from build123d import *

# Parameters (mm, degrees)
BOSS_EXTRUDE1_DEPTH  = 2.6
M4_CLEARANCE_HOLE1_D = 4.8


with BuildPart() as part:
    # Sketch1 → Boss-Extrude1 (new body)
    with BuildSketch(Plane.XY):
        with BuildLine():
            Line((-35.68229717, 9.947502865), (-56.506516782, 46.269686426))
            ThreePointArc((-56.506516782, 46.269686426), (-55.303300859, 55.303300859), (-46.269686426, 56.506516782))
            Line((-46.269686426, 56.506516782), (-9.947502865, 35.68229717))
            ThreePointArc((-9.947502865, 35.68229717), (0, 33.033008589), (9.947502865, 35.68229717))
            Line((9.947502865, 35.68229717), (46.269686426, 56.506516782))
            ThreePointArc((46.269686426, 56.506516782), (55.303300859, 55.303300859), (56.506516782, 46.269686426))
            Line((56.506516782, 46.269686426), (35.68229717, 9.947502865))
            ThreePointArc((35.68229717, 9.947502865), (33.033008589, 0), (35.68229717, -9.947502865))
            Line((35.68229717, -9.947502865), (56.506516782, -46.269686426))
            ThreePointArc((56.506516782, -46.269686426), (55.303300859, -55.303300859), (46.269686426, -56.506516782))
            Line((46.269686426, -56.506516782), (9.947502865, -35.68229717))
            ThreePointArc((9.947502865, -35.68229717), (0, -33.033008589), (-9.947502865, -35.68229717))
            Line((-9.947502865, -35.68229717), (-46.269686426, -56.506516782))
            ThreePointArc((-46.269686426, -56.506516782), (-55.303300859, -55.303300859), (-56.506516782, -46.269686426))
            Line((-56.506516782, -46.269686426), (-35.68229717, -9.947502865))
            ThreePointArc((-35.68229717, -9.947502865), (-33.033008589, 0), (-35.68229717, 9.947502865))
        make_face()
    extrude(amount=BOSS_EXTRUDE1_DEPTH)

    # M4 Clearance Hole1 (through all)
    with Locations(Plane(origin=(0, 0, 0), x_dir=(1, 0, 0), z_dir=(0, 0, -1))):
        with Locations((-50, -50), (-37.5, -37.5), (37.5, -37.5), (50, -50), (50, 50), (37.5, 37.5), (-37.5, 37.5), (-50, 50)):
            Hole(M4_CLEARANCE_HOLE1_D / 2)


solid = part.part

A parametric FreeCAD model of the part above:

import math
import FreeCAD as App
import Part
import Sketcher
from FreeCAD import Vector
Q = App.Units.Quantity

doc = App.newDocument("Part")
body = doc.addObject("PartDesign::Body", "Body")

# Sketch on XY plane
sketch1 = body.newObject("Sketcher::SketchObject", "Sketch")
sketch1.AttachmentSupport = (doc.getObject("XY_Plane"), [""])
sketch1.MapMode = "FlatFace"
sketch1.addGeometry(Part.LineSegment(Vector(-57, 46, 0), Vector(-36, 10, 0)), False)
sketch1.addGeometry(Part.ArcOfCircle(Part.Circle(Vector(-53, 0, 0), Vector(0, 0, 1), 20), math.radians(-30), math.radians(30)), False)
sketch1.addGeometry(Part.LineSegment(Vector(-36, -10, 0), Vector(-57, -46, 0)), False)
sketch1.addGeometry(Part.ArcOfCircle(Part.Circle(Vector(-50, -50, 0), Vector(0, 0, 1), 7), math.radians(150), math.radians(300)), False)
sketch1.addGeometry(Part.LineSegment(Vector(-46, -57, 0), Vector(-10, -36, 0)), False)
sketch1.addGeometry(Part.ArcOfCircle(Part.Circle(Vector(0, -53, 0), Vector(0, 0, 1), 20), math.radians(60), math.radians(120)), False)
sketch1.addGeometry(Part.LineSegment(Vector(10, -36, 0), Vector(46, -57, 0)), False)
sketch1.addGeometry(Part.ArcOfCircle(Part.Circle(Vector(50, -50, 0), Vector(0, 0, 1), 7), math.radians(-120), math.radians(30)), False)
sketch1.addGeometry(Part.LineSegment(Vector(57, -46, 0), Vector(36, -10, 0)), False)
sketch1.addGeometry(Part.ArcOfCircle(Part.Circle(Vector(53, 0, 0), Vector(0, 0, 1), 20), math.radians(150), math.radians(210)), False)
sketch1.addGeometry(Part.LineSegment(Vector(36, 10, 0), Vector(57, 46, 0)), False)
sketch1.addGeometry(Part.ArcOfCircle(Part.Circle(Vector(50, 50, 0), Vector(0, 0, 1), 7), math.radians(-30), math.radians(120)), False)
sketch1.addGeometry(Part.LineSegment(Vector(46, 57, 0), Vector(10, 36, 0)), False)
sketch1.addGeometry(Part.ArcOfCircle(Part.Circle(Vector(0, 53, 0), Vector(0, 0, 1), 20), math.radians(-120), math.radians(-60)), False)
sketch1.addGeometry(Part.LineSegment(Vector(-10, 36, 0), Vector(-46, 57, 0)), False)
sketch1.addGeometry(Part.ArcOfCircle(Part.Circle(Vector(-50, 50, 0), Vector(0, 0, 1), 7), math.radians(60), math.radians(210)), False)
sketch1.addConstraint(Sketcher.Constraint("Tangent", 0, 2, 1, 2))
sketch1.addConstraint(Sketcher.Constraint("Tangent", 1, 1, 2, 1))
sketch1.addConstraint(Sketcher.Constraint("Tangent", 2, 2, 3, 1))
sketch1.addConstraint(Sketcher.Constraint("Tangent", 3, 2, 4, 1))
sketch1.addConstraint(Sketcher.Constraint("Tangent", 4, 2, 5, 2))
sketch1.addConstraint(Sketcher.Constraint("Tangent", 5, 1, 6, 1))
sketch1.addConstraint(Sketcher.Constraint("Tangent", 6, 2, 7, 1))
sketch1.addConstraint(Sketcher.Constraint("Tangent", 7, 2, 8, 1))
sketch1.addConstraint(Sketcher.Constraint("Tangent", 8, 2, 9, 2))
sketch1.addConstraint(Sketcher.Constraint("Tangent", 9, 1, 10, 1))
sketch1.addConstraint(Sketcher.Constraint("Tangent", 10, 2, 11, 1))
sketch1.addConstraint(Sketcher.Constraint("Tangent", 11, 2, 12, 1))
sketch1.addConstraint(Sketcher.Constraint("Tangent", 12, 2, 13, 2))
sketch1.addConstraint(Sketcher.Constraint("Tangent", 13, 1, 14, 1))
sketch1.addConstraint(Sketcher.Constraint("Tangent", 14, 2, 15, 1))
sketch1.addConstraint(Sketcher.Constraint("Tangent", 15, 2, 0, 1))
sketch1.addConstraint(Sketcher.Constraint("Equal", 1, 5))
sketch1.addConstraint(Sketcher.Constraint("Equal", 3, 7))
sketch1.addConstraint(Sketcher.Constraint("Equal", 5, 9))
sketch1.addConstraint(Sketcher.Constraint("Equal", 7, 11))
sketch1.addConstraint(Sketcher.Constraint("Equal", 9, 13))
sketch1.addConstraint(Sketcher.Constraint("Equal", 11, 15))
sketch1.addConstraint(Sketcher.Constraint("Symmetric", 1, 3, 9, 3, -1, 1))
sketch1.addConstraint(Sketcher.Constraint("Symmetric", 3, 3, 11, 3, -1, 1))
sketch1.addConstraint(Sketcher.Constraint("Symmetric", 5, 3, 13, 3, -1, 1))
sketch1.addConstraint(Sketcher.Constraint("Symmetric", 7, 3, 15, 3, -1, 1))
sketch1.addConstraint(Sketcher.Constraint("Symmetric", 3, 3, 7, 3, -2))
sketch1.addConstraint(Sketcher.Constraint("PointOnObject", 1, 3, -1))
sketch1.addConstraint(Sketcher.Constraint("PointOnObject", 5, 3, -2))
sketch1.addConstraint(Sketcher.Constraint("Perpendicular", 0, 4))
sketch1.addConstraint(Sketcher.Constraint("Equal", 2, 4))
sketch1.addConstraint(Sketcher.Constraint("Radius", 1, Q("20 mm")))
sketch1.addConstraint(Sketcher.Constraint("Radius", 3, Q("7.5 mm")))
sketch1.addConstraint(Sketcher.Constraint("DistanceX", 3, 3, -1, 1, Q("50 mm")))
sketch1.addConstraint(Sketcher.Constraint("DistanceX", 1, 1, 5, 1, Q("45.6298 mm")))
pad1 = body.newObject("PartDesign::Pad", "Pad")
pad1.Profile = sketch1
pad1.Length = 2.6

# Sketch on XY plane
sketch2 = body.newObject("Sketcher::SketchObject", "Sketch001")
sketch2.AttachmentSupport = (doc.getObject("XY_Plane"), [""])
sketch2.MapMode = "FlatFace"
sketch2.addGeometry(Part.Circle(Vector(-50, 50, 0), Vector(0, 0, 1), 2.4), False)
sketch2.addGeometry(Part.Circle(Vector(-37.5, 37.5, 0), Vector(0, 0, 1), 2.4), False)
sketch2.addGeometry(Part.Circle(Vector(37.5, 37.5, 0), Vector(0, 0, 1), 2.4), False)
sketch2.addGeometry(Part.Circle(Vector(50, 50, 0), Vector(0, 0, 1), 2.4), False)
sketch2.addGeometry(Part.Circle(Vector(50, -50, 0), Vector(0, 0, 1), 2.4), False)
sketch2.addGeometry(Part.Circle(Vector(37.5, -37.5, 0), Vector(0, 0, 1), 2.4), False)
sketch2.addGeometry(Part.Circle(Vector(-37.5, -37.5, 0), Vector(0, 0, 1), 2.4), False)
sketch2.addGeometry(Part.Circle(Vector(-50, -50, 0), Vector(0, 0, 1), 2.4), False)
sketch2.addConstraint(Sketcher.Constraint("Equal", 0, 1))
sketch2.addConstraint(Sketcher.Constraint("Equal", 1, 2))
sketch2.addConstraint(Sketcher.Constraint("Equal", 2, 3))
sketch2.addConstraint(Sketcher.Constraint("Equal", 3, 4))
sketch2.addConstraint(Sketcher.Constraint("Equal", 4, 5))
sketch2.addConstraint(Sketcher.Constraint("Equal", 5, 6))
sketch2.addConstraint(Sketcher.Constraint("Equal", 6, 7))
sketch2.addConstraint(Sketcher.Constraint("Symmetric", 0, 3, 4, 3, -1, 1))
sketch2.addConstraint(Sketcher.Constraint("Symmetric", 1, 3, 5, 3, -1, 1))
sketch2.addConstraint(Sketcher.Constraint("Symmetric", 2, 3, 6, 3, -1, 1))
sketch2.addConstraint(Sketcher.Constraint("Symmetric", 3, 3, 7, 3, -1, 1))
sketch2.addConstraint(Sketcher.Constraint("Symmetric", 1, 3, 2, 3, -2))
sketch2.addConstraint(Sketcher.Constraint("Symmetric", 0, 3, 3, 3, -2))
sketch2.addConstraint(Sketcher.Constraint("Diameter", 0, Q("4.8 mm")))
sketch2.addConstraint(Sketcher.Constraint("DistanceX", 0, 3, -1, 1, Q("50 mm")))
sketch2.addConstraint(Sketcher.Constraint("DistanceY", -1, 1, 0, 3, Q("50 mm")))
sketch2.addConstraint(Sketcher.Constraint("DistanceX", 1, 3, 2, 3, Q("75 mm")))
sketch2.addConstraint(Sketcher.Constraint("DistanceY", 5, 3, 2, 3, Q("75 mm")))
doc.recompute()
hole = body.newObject("PartDesign::Hole", "Hole")
hole.Profile = sketch2
hole.ThreadType = "None"
hole.Diameter = 4.8
hole.DepthType = "ThroughAll"
hole.Reversed = True

doc.recompute()
